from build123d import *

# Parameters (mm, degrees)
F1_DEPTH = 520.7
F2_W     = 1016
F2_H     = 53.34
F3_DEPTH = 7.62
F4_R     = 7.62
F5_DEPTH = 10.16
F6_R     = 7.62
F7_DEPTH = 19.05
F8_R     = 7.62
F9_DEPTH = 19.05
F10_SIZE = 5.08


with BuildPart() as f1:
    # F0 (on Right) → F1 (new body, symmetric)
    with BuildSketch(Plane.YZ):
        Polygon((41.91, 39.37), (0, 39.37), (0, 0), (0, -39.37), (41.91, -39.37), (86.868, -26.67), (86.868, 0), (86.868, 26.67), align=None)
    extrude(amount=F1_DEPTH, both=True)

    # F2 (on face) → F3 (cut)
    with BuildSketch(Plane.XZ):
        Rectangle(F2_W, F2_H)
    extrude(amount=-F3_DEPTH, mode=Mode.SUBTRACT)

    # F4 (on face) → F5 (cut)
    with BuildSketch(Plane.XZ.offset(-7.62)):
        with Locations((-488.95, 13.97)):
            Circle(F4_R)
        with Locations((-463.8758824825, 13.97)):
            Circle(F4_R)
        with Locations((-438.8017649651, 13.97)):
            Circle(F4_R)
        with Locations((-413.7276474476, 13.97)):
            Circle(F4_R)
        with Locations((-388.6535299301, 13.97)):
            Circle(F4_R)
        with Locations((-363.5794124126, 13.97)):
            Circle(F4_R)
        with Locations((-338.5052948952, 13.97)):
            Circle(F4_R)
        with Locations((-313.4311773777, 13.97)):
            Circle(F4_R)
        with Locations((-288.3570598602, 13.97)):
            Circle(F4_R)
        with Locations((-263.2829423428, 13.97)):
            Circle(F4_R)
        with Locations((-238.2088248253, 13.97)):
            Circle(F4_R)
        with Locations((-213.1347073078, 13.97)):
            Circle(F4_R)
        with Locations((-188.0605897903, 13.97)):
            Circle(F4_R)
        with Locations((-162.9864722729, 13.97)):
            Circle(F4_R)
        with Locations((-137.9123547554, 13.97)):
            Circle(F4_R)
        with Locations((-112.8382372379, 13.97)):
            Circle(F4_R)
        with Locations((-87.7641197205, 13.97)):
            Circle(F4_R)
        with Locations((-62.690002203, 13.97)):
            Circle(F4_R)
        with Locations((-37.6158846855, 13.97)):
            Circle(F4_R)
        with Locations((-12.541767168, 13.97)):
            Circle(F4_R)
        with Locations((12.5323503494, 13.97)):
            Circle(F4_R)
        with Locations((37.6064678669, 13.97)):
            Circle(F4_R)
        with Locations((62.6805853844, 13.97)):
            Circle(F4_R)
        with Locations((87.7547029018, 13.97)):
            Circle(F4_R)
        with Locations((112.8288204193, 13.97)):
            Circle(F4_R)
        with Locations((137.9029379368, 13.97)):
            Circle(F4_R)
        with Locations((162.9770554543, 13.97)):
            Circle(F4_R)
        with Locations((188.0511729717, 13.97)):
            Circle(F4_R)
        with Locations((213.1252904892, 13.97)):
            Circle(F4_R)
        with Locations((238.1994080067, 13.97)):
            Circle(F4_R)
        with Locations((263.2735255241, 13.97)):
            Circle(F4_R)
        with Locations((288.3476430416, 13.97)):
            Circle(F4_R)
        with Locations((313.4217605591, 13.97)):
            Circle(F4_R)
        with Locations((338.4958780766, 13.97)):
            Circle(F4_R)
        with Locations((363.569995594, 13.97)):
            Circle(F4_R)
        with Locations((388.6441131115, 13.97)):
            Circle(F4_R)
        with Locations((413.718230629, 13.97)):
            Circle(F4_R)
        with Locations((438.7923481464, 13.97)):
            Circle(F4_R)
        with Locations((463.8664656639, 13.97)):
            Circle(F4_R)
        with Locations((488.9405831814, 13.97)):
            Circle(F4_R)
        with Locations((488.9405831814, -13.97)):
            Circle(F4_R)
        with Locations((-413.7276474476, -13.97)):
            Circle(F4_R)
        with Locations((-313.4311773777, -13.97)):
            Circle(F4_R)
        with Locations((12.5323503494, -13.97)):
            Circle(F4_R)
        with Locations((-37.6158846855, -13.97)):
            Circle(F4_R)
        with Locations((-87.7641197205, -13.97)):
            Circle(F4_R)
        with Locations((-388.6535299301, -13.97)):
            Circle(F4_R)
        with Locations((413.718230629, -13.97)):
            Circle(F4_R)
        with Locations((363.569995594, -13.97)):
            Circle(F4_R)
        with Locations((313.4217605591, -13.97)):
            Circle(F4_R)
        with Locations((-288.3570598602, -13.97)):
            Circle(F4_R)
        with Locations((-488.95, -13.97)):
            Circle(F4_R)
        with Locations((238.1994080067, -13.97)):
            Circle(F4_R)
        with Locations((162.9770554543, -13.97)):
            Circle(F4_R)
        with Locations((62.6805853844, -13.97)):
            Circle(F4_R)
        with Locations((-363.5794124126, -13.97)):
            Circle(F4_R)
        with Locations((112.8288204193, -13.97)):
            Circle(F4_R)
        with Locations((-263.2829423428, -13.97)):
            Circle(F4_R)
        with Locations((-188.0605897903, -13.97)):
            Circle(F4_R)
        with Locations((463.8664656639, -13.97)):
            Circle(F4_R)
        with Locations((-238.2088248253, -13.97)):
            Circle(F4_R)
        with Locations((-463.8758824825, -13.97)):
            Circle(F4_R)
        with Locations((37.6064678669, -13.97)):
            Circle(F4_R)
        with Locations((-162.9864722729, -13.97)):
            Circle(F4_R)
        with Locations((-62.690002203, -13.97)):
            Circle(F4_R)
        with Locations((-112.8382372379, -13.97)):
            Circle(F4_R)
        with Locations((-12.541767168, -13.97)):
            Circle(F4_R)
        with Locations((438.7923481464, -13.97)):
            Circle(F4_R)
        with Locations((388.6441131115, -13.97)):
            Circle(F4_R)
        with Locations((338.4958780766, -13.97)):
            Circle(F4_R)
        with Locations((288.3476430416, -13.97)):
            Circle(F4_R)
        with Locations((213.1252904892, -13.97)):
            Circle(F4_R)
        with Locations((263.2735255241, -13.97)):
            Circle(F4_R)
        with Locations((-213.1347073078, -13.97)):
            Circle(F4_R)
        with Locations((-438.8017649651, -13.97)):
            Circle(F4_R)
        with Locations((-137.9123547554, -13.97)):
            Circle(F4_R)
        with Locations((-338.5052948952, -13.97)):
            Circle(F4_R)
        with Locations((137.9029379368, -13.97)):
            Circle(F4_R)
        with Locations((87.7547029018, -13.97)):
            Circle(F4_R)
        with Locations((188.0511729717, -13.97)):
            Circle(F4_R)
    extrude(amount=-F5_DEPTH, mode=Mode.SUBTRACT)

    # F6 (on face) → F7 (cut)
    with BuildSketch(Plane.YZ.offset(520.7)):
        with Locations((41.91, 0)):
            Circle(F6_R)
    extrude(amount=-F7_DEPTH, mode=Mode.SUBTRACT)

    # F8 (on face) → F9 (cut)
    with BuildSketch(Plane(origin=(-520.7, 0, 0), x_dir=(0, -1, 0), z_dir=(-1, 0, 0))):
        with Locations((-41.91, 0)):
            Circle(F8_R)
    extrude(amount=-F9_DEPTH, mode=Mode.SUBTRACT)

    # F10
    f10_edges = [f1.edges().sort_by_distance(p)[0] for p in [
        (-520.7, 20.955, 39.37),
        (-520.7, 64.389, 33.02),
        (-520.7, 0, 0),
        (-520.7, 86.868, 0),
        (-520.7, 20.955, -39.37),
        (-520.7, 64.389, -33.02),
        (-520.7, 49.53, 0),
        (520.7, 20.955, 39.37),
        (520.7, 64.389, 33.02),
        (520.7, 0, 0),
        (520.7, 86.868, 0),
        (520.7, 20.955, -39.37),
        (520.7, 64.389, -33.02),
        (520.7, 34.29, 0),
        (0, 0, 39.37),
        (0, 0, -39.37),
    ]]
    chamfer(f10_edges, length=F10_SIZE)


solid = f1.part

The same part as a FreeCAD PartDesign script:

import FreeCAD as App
import Part
import Sketcher
from FreeCAD import Vector
Q = App.Units.Quantity


def edges_at(feature, points):
    """Names of the edges that pass closest to the given points."""
    edges = feature.Shape.Edges
    near = lambda p: min(range(len(edges)), key=lambda i: edges[i].distToShape(Part.Vertex(*p))[0])
    return sorted({f"Edge{near(p) + 1}" for p in points})

doc = App.newDocument("Part")
params = doc.addObject("Spreadsheet::Sheet", "Params")
for row, (alias, value) in enumerate([
    ("sketch1_height", "3.1 in"),
    ("sketch1_height2", "2.1 in"),
    ("sketch1_width", "1.65 in"),
    ("pad1_length", "41 in"),
    ("sketch2_width", "40 in"),
    ("sketch2_height", "2.1 in"),
    ("pocket1_length", "0.3 in"),
    ("sketch3_diameter", "0.6 in"),
    ("pocket2_length", "0.4 in"),
    ("sketch4_diameter", "0.6 in"),
    ("pocket3_length", "0.75 in"),
    ("sketch5_diameter", "0.6 in"),
    ("pocket4_length", "0.75 in"),
    ("chamfer_size", "0.2 in"),
], start=1):
    params.set(f"A{row}", alias)
    params.set(f"B{row}", "=" + value)
    params.setAlias(f"B{row}", alias)

body = doc.addObject("PartDesign::Body", "Body")

sketch1 = body.newObject("Sketcher::SketchObject", "Sketch")
sketch1.AttachmentSupport = (doc.getObject("YZ_Plane"), [""])
sketch1.MapMode = "FlatFace"
sketch1.addGeometry([
    Part.LineSegment(Vector(42, 39, 0), Vector(0, 39, 0)),
    Part.LineSegment(Vector(0, 39, 0), Vector(0, -39, 0)),
    Part.LineSegment(Vector(0, -39, 0), Vector(42, -39, 0)),
    Part.LineSegment(Vector(42, -39, 0), Vector(87, -27, 0)),
    Part.LineSegment(Vector(87, -27, 0), Vector(87, 27, 0)),
    Part.LineSegment(Vector(87, 27, 0), Vector(42, 39, 0)),
], False)
sketch1.addConstraint([
    Sketcher.Constraint("Coincident", 0, 2, 1, 1),
    Sketcher.Constraint("Coincident", 1, 2, 2, 1),
    Sketcher.Constraint("Coincident", 2, 2, 3, 1),
    Sketcher.Constraint("Coincident", 3, 2, 4, 1),
    Sketcher.Constraint("Coincident", 4, 2, 5, 1),
    Sketcher.Constraint("Coincident", 5, 2, 0, 1),
    Sketcher.Constraint("Horizontal", 0),
    Sketcher.Constraint("Vertical", 1),
    Sketcher.Constraint("Horizontal", 2),
    Sketcher.Constraint("Vertical", 4),
    Sketcher.Constraint("Symmetric", 0, 2, 1, 2, -1, 1),
    Sketcher.Constraint("Vertical", 2, 2, 5, 2),
    Sketcher.Constraint("Equal", 3, 5),
    Sketcher.Constraint("DistanceY", 1, 2, 1, 1, Q("3.1 in")),
    Sketcher.Constraint("DistanceY", 4, 1, 4, 2, Q("2.1 in")),
    Sketcher.Constraint("DistanceX", 0, 2, 0, 1, Q("1.65 in")),
    Sketcher.Constraint("DistanceX", -1, 1, 3, 2, Q("3.42 in")),
])
sketch1.setExpression("Constraints[13]", "Params.sketch1_height")
sketch1.setExpression("Constraints[14]", "Params.sketch1_height2")
sketch1.setExpression("Constraints[15]", "Params.sketch1_width")
pad1 = body.newObject("PartDesign::Pad", "Pad")
pad1.Profile = sketch1
pad1.setExpression("Length", "Params.pad1_length")
pad1.Midplane = True

sketch2 = body.newObject("Sketcher::SketchObject", "Sketch001")
sketch2.AttachmentSupport = (doc.getObject("XZ_Plane"), [""])
sketch2.MapMode = "FlatFace"
sketch2.addGeometry([
    Part.LineSegment(Vector(-508, 27, 0), Vector(-508, -27, 0)),
    Part.LineSegment(Vector(-508, -27, 0), Vector(508, -27, 0)),
    Part.LineSegment(Vector(508, -27, 0), Vector(508, 27, 0)),
    Part.LineSegment(Vector(508, 27, 0), Vector(-508, 27, 0)),
], False)
sketch2.addConstraint([
    Sketcher.Constraint("Coincident", 0, 2, 1, 1),
    Sketcher.Constraint("Coincident", 1, 2, 2, 1),
    Sketcher.Constraint("Coincident", 2, 2, 3, 1),
    Sketcher.Constraint("Coincident", 3, 2, 0, 1),
    Sketcher.Constraint("Vertical", 0),
    Sketcher.Constraint("Horizontal", 1),
    Sketcher.Constraint("Vertical", 2),
    Sketcher.Constraint("Horizontal", 3),
    Sketcher.Constraint("Symmetric", 0, 2, 2, 2, -1, 1),
    Sketcher.Constraint("DistanceX", 1, 1, 1, 2, Q("40 in")),
    Sketcher.Constraint("DistanceY", 0, 2, 0, 1, Q("2.1 in")),
])
sketch2.setExpression("Constraints[9]", "Params.sketch2_width")
sketch2.setExpression("Constraints[10]", "Params.sketch2_height")
pocket1 = body.newObject("PartDesign::Pocket", "Pocket")
pocket1.Profile = sketch2
pocket1.setExpression("Length", "Params.pocket1_length")

sketch3 = body.newObject("Sketcher::SketchObject", "Sketch002")
sketch3.AttachmentSupport = (doc.getObject("XZ_Plane"), [""])
sketch3.MapMode = "FlatFace"
sketch3.AttachmentOffset = App.Placement(Vector(0, 0, -0.3 * 25.4), App.Rotation())
sketch3.addGeometry([
    Part.Circle(Vector(-489, 14, 0), Vector(0, 0, 1), 8),
    Part.Circle(Vector(-464, 14, 0), Vector(0, 0, 1), 8),
    Part.Circle(Vector(-439, 14, 0), Vector(0, 0, 1), 8),
    Part.Circle(Vector(-414, 14, 0), Vector(0, 0, 1), 8),
    Part.Circle(Vector(-389, 14, 0), Vector(0, 0, 1), 8),
    Part.Circle(Vector(-364, 14, 0), Vector(0, 0, 1), 8),
    Part.Circle(Vector(-339, 14, 0), Vector(0, 0, 1), 8),
    Part.Circle(Vector(-313, 14, 0), Vector(0, 0, 1), 8),
    Part.Circle(Vector(-288, 14, 0), Vector(0, 0, 1), 8),
    Part.Circle(Vector(-263, 14, 0), Vector(0, 0, 1), 8),
    Part.Circle(Vector(-238, 14, 0), Vector(0, 0, 1), 8),
    Part.Circle(Vector(-213, 14, 0), Vector(0, 0, 1), 8),
    Part.Circle(Vector(-188, 14, 0), Vector(0, 0, 1), 8),
    Part.Circle(Vector(-163, 14, 0), Vector(0, 0, 1), 8),
    Part.Circle(Vector(-138, 14, 0), Vector(0, 0, 1), 8),
    Part.Circle(Vector(-113, 14, 0), Vector(0, 0, 1), 8),
    Part.Circle(Vector(-88, 14, 0), Vector(0, 0, 1), 8),
    Part.Circle(Vector(-63, 14, 0), Vector(0, 0, 1), 8),
    Part.Circle(Vector(-38, 14, 0), Vector(0, 0, 1), 8),
    Part.Circle(Vector(-13, 14, 0), Vector(0, 0, 1), 8),
    Part.Circle(Vector(13, 14, 0), Vector(0, 0, 1), 8),
    Part.Circle(Vector(38, 14, 0), Vector(0, 0, 1), 8),
    Part.Circle(Vector(63, 14, 0), Vector(0, 0, 1), 8),
    Part.Circle(Vector(88, 14, 0), Vector(0, 0, 1), 8),
    Part.Circle(Vector(113, 14, 0), Vector(0, 0, 1), 8),
    Part.Circle(Vector(138, 14, 0), Vector(0, 0, 1), 8),
    Part.Circle(Vector(163, 14, 0), Vector(0, 0, 1), 8),
    Part.Circle(Vector(188, 14, 0), Vector(0, 0, 1), 8),
    Part.Circle(Vector(213, 14, 0), Vector(0, 0, 1), 8),
    Part.Circle(Vector(238, 14, 0), Vector(0, 0, 1), 8),
    Part.Circle(Vector(263, 14, 0), Vector(0, 0, 1), 8),
    Part.Circle(Vector(288, 14, 0), Vector(0, 0, 1), 8),
    Part.Circle(Vector(313, 14, 0), Vector(0, 0, 1), 8),
    Part.Circle(Vector(338, 14, 0), Vector(0, 0, 1), 8),
    Part.Circle(Vector(364, 14, 0), Vector(0, 0, 1), 8),
    Part.Circle(Vector(389, 14, 0), Vector(0, 0, 1), 8),
    Part.Circle(Vector(414, 14, 0), Vector(0, 0, 1), 8),
    Part.Circle(Vector(439, 14, 0), Vector(0, 0, 1), 8),
    Part.Circle(Vector(464, 14, 0), Vector(0, 0, 1), 8),
    Part.Circle(Vector(489, 14, 0), Vector(0, 0, 1), 8),
    Part.Circle(Vector(489, -14, 0), Vector(0, 0, 1), 8),
    Part.Circle(Vector(-414, -14, 0), Vector(0, 0, 1), 8),
    Part.Circle(Vector(-313, -14, 0), Vector(0, 0, 1), 8),
    Part.Circle(Vector(13, -14, 0), Vector(0, 0, 1), 8),
    Part.Circle(Vector(-38, -14, 0), Vector(0, 0, 1), 8),
    Part.Circle(Vector(-88, -14, 0), Vector(0, 0, 1), 8),
    Part.Circle(Vector(-389, -14, 0), Vector(0, 0, 1), 8),
    Part.Circle(Vector(414, -14, 0), Vector(0, 0, 1), 8),
    Part.Circle(Vector(364, -14, 0), Vector(0, 0, 1), 8),
    Part.Circle(Vector(313, -14, 0), Vector(0, 0, 1), 8),
    Part.Circle(Vector(-288, -14, 0), Vector(0, 0, 1), 8),
    Part.Circle(Vector(-489, -14, 0), Vector(0, 0, 1), 8),
    Part.Circle(Vector(238, -14, 0), Vector(0, 0, 1), 8),
    Part.Circle(Vector(163, -14, 0), Vector(0, 0, 1), 8),
    Part.Circle(Vector(63, -14, 0), Vector(0, 0, 1), 8),
    Part.Circle(Vector(-364, -14, 0), Vector(0, 0, 1), 8),
    Part.Circle(Vector(113, -14, 0), Vector(0, 0, 1), 8),
    Part.Circle(Vector(-263, -14, 0), Vector(0, 0, 1), 8),
    Part.Circle(Vector(-188, -14, 0), Vector(0, 0, 1), 8),
    Part.Circle(Vector(464, -14, 0), Vector(0, 0, 1), 8),
    Part.Circle(Vector(-238, -14, 0), Vector(0, 0, 1), 8),
    Part.Circle(Vector(-464, -14, 0), Vector(0, 0, 1), 8),
    Part.Circle(Vector(38, -14, 0), Vector(0, 0, 1), 8),
    Part.Circle(Vector(-163, -14, 0), Vector(0, 0, 1), 8),
    Part.Circle(Vector(-63, -14, 0), Vector(0, 0, 1), 8),
    Part.Circle(Vector(-113, -14, 0), Vector(0, 0, 1), 8),
    Part.Circle(Vector(-13, -14, 0), Vector(0, 0, 1), 8),
    Part.Circle(Vector(439, -14, 0), Vector(0, 0, 1), 8),
    Part.Circle(Vector(389, -14, 0), Vector(0, 0, 1), 8),
    Part.Circle(Vector(338, -14, 0), Vector(0, 0, 1), 8),
    Part.Circle(Vector(288, -14, 0), Vector(0, 0, 1), 8),
    Part.Circle(Vector(213, -14, 0), Vector(0, 0, 1), 8),
    Part.Circle(Vector(263, -14, 0), Vector(0, 0, 1), 8),
    Part.Circle(Vector(-213, -14, 0), Vector(0, 0, 1), 8),
    Part.Circle(Vector(-439, -14, 0), Vector(0, 0, 1), 8),
    Part.Circle(Vector(-138, -14, 0), Vector(0, 0, 1), 8),
    Part.Circle(Vector(-339, -14, 0), Vector(0, 0, 1), 8),
    Part.Circle(Vector(138, -14, 0), Vector(0, 0, 1), 8),
    Part.Circle(Vector(88, -14, 0), Vector(0, 0, 1), 8),
    Part.Circle(Vector(188, -14, 0), Vector(0, 0, 1), 8),
], False)
sketch3.addConstraint([
    Sketcher.Constraint("Equal", 0, 1),
    Sketcher.Constraint("Equal", 1, 2),
    Sketcher.Constraint("Equal", 2, 3),
    Sketcher.Constraint("Equal", 3, 4),
    Sketcher.Constraint("Equal", 4, 5),
    Sketcher.Constraint("Equal", 5, 6),
    Sketcher.Constraint("Equal", 6, 7),
    Sketcher.Constraint("Equal", 7, 8),
    Sketcher.Constraint("Equal", 8, 9),
    Sketcher.Constraint("Equal", 9, 10),
    Sketcher.Constraint("Equal", 10, 11),
    Sketcher.Constraint("Equal", 11, 12),
    Sketcher.Constraint("Equal", 12, 13),
    Sketcher.Constraint("Equal", 13, 14),
    Sketcher.Constraint("Equal", 14, 15),
    Sketcher.Constraint("Equal", 15, 16),
    Sketcher.Constraint("Equal", 16, 17),
    Sketcher.Constraint("Equal", 17, 18),
    Sketcher.Constraint("Equal", 18, 19),
    Sketcher.Constraint("Equal", 19, 20),
    Sketcher.Constraint("Equal", 20, 21),
    Sketcher.Constraint("Equal", 21, 22),
    Sketcher.Constraint("Equal", 22, 23),
    Sketcher.Constraint("Equal", 23, 24),
    Sketcher.Constraint("Equal", 24, 25),
    Sketcher.Constraint("Equal", 25, 26),
    Sketcher.Constraint("Equal", 26, 27),
    Sketcher.Constraint("Equal", 27, 28),
    Sketcher.Constraint("Equal", 28, 29),
    Sketcher.Constraint("Equal", 29, 30),
    Sketcher.Constraint("Equal", 30, 31),
    Sketcher.Constraint("Equal", 31, 32),
    Sketcher.Constraint("Equal", 32, 33),
    Sketcher.Constraint("Equal", 33, 34),
    Sketcher.Constraint("Equal", 34, 35),
    Sketcher.Constraint("Equal", 35, 36),
    Sketcher.Constraint("Equal", 36, 37),
    Sketcher.Constraint("Equal", 37, 38),
    Sketcher.Constraint("Equal", 38, 39),
    Sketcher.Constraint("Equal", 39, 40),
    Sketcher.Constraint("Equal", 40, 41),
    Sketcher.Constraint("Equal", 41, 42),
    Sketcher.Constraint("Equal", 42, 43),
    Sketcher.Constraint("Equal", 43, 44),
    Sketcher.Constraint("Equal", 44, 45),
    Sketcher.Constraint("Equal", 45, 46),
    Sketcher.Constraint("Equal", 46, 47),
    Sketcher.Constraint("Equal", 47, 48),
    Sketcher.Constraint("Equal", 48, 49),
    Sketcher.Constraint("Equal", 49, 50),
    Sketcher.Constraint("Equal", 50, 51),
    Sketcher.Constraint("Equal", 51, 52),
    Sketcher.Constraint("Equal", 52, 53),
    Sketcher.Constraint("Equal", 53, 54),
    Sketcher.Constraint("Equal", 54, 55),
    Sketcher.Constraint("Equal", 55, 56),
    Sketcher.Constraint("Equal", 56, 57),
    Sketcher.Constraint("Equal", 57, 58),
    Sketcher.Constraint("Equal", 58, 59),
    Sketcher.Constraint("Equal", 59, 60),
    Sketcher.Constraint("Equal", 60, 61),
    Sketcher.Constraint("Equal", 61, 62),
    Sketcher.Constraint("Equal", 62, 63),
    Sketcher.Constraint("Equal", 63, 64),
    Sketcher.Constraint("Equal", 64, 65),
    Sketcher.Constraint("Equal", 65, 66),
    Sketcher.Constraint("Equal", 66, 67),
    Sketcher.Constraint("Equal", 67, 68),
    Sketcher.Constraint("Equal", 68, 69),
    Sketcher.Constraint("Equal", 69, 70),
    Sketcher.Constraint("Equal", 70, 71),
    Sketcher.Constraint("Equal", 71, 72),
    Sketcher.Constraint("Equal", 72, 73),
    Sketcher.Constraint("Equal", 73, 74),
    Sketcher.Constraint("Equal", 74, 75),
    Sketcher.Constraint("Equal", 75, 76),
    Sketcher.Constraint("Equal", 76, 77),
    Sketcher.Constraint("Equal", 77, 78),
    Sketcher.Constraint("Equal", 78, 79),
    Sketcher.Constraint("Symmetric", 39, 3, 40, 3, -1),
    Sketcher.Constraint("Symmetric", 3, 3, 41, 3, -1),
    Sketcher.Constraint("Symmetric", 7, 3, 42, 3, -1),
    Sketcher.Constraint("Symmetric", 20, 3, 43, 3, -1),
    Sketcher.Constraint("Symmetric", 18, 3, 44, 3, -1),
    Sketcher.Constraint("Symmetric", 16, 3, 45, 3, -1),
    Sketcher.Constraint("Symmetric", 4, 3, 46, 3, -1),
    Sketcher.Constraint("Symmetric", 36, 3, 47, 3, -1),
    Sketcher.Constraint("Symmetric", 34, 3, 48, 3, -1),
    Sketcher.Constraint("Symmetric", 32, 3, 49, 3, -1),
    Sketcher.Constraint("Symmetric", 8, 3, 50, 3, -1),
    Sketcher.Constraint("Symmetric", 0, 3, 51, 3, -1),
    Sketcher.Constraint("Symmetric", 29, 3, 52, 3, -1),
    Sketcher.Constraint("Symmetric", 26, 3, 53, 3, -1),
    Sketcher.Constraint("Symmetric", 22, 3, 54, 3, -1),
    Sketcher.Constraint("Symmetric", 5, 3, 55, 3, -1),
    Sketcher.Constraint("Symmetric", 24, 3, 56, 3, -1),
    Sketcher.Constraint("Symmetric", 9, 3, 57, 3, -1),
    Sketcher.Constraint("Symmetric", 12, 3, 58, 3, -1),
    Sketcher.Constraint("Symmetric", 38, 3, 59, 3, -1),
    Sketcher.Constraint("Symmetric", 10, 3, 60, 3, -1),
    Sketcher.Constraint("Symmetric", 1, 3, 61, 3, -1),
    Sketcher.Constraint("Symmetric", 21, 3, 62, 3, -1),
    Sketcher.Constraint("Symmetric", 13, 3, 63, 3, -1),
    Sketcher.Constraint("Symmetric", 17, 3, 64, 3, -1),
    Sketcher.Constraint("Symmetric", 15, 3, 65, 3, -1),
    Sketcher.Constraint("Symmetric", 19, 3, 66, 3, -1),
    Sketcher.Constraint("Symmetric", 37, 3, 67, 3, -1),
    Sketcher.Constraint("Symmetric", 35, 3, 68, 3, -1),
    Sketcher.Constraint("Symmetric", 33, 3, 69, 3, -1),
    Sketcher.Constraint("Symmetric", 31, 3, 70, 3, -1),
    Sketcher.Constraint("Symmetric", 28, 3, 71, 3, -1),
    Sketcher.Constraint("Symmetric", 30, 3, 72, 3, -1),
    Sketcher.Constraint("Symmetric", 11, 3, 73, 3, -1),
    Sketcher.Constraint("Symmetric", 2, 3, 74, 3, -1),
    Sketcher.Constraint("Symmetric", 14, 3, 75, 3, -1),
    Sketcher.Constraint("Symmetric", 6, 3, 76, 3, -1),
    Sketcher.Constraint("Symmetric", 25, 3, 77, 3, -1),
    Sketcher.Constraint("Symmetric", 23, 3, 78, 3, -1),
    Sketcher.Constraint("Symmetric", 27, 3, 79, 3, -1),
    Sketcher.Constraint("Horizontal", 0, 3, 1, 3),
    Sketcher.Constraint("Horizontal", 1, 3, 2, 3),
    Sketcher.Constraint("Horizontal", 2, 3, 3, 3),
    Sketcher.Constraint("Horizontal", 3, 3, 4, 3),
    Sketcher.Constraint("Horizontal", 4, 3, 5, 3),
    Sketcher.Constraint("Horizontal", 5, 3, 6, 3),
    Sketcher.Constraint("Horizontal", 6, 3, 7, 3),
    Sketcher.Constraint("Horizontal", 7, 3, 8, 3),
    Sketcher.Constraint("Horizontal", 8, 3, 9, 3),
    Sketcher.Constraint("Horizontal", 9, 3, 10, 3),
    Sketcher.Constraint("Horizontal", 10, 3, 11, 3),
    Sketcher.Constraint("Horizontal", 11, 3, 12, 3),
    Sketcher.Constraint("Horizontal", 12, 3, 13, 3),
    Sketcher.Constraint("Horizontal", 13, 3, 14, 3),
    Sketcher.Constraint("Horizontal", 14, 3, 15, 3),
    Sketcher.Constraint("Horizontal", 15, 3, 16, 3),
    Sketcher.Constraint("Horizontal", 16, 3, 17, 3),
    Sketcher.Constraint("Horizontal", 17, 3, 18, 3),
    Sketcher.Constraint("Horizontal", 18, 3, 19, 3),
    Sketcher.Constraint("Horizontal", 19, 3, 20, 3),
    Sketcher.Constraint("Horizontal", 20, 3, 21, 3),
    Sketcher.Constraint("Horizontal", 21, 3, 22, 3),
    Sketcher.Constraint("Horizontal", 22, 3, 23, 3),
    Sketcher.Constraint("Horizontal", 23, 3, 24, 3),
    Sketcher.Constraint("Horizontal", 24, 3, 25, 3),
    Sketcher.Constraint("Horizontal", 25, 3, 26, 3),
    Sketcher.Constraint("Horizontal", 26, 3, 27, 3),
    Sketcher.Constraint("Horizontal", 27, 3, 28, 3),
    Sketcher.Constraint("Horizontal", 28, 3, 29, 3),
    Sketcher.Constraint("Horizontal", 29, 3, 30, 3),
    Sketcher.Constraint("Horizontal", 30, 3, 31, 3),
    Sketcher.Constraint("Horizontal", 31, 3, 32, 3),
    Sketcher.Constraint("Horizontal", 32, 3, 33, 3),
    Sketcher.Constraint("Horizontal", 33, 3, 34, 3),
    Sketcher.Constraint("Horizontal", 34, 3, 35, 3),
    Sketcher.Constraint("Horizontal", 35, 3, 36, 3),
    Sketcher.Constraint("Horizontal", 36, 3, 37, 3),
    Sketcher.Constraint("Horizontal", 37, 3, 38, 3),
    Sketcher.Constraint("Horizontal", 38, 3, 39, 3),
    Sketcher.Constraint("Diameter", 0, Q("0.6 in")),
    Sketcher.Constraint("DistanceX", 0, 3, -1, 1, Q("19.25 in")),
    Sketcher.Constraint("DistanceY", -1, 1, 0, 3, Q("0.55 in")),
    Sketcher.Constraint("DistanceX", 10, 3, -1, 1, Q("9.3783002 in")),
    Sketcher.Constraint("DistanceX", 4, 3, -1, 1, Q("388.65353 mm")),
    Sketcher.Constraint("DistanceX", 8, 3, -1, 1, Q("288.35706 mm")),
    Sketcher.Constraint("DistanceX", 12, 3, -1, 1, Q("188.06059 mm")),
    Sketcher.Constraint("DistanceX", 16, 3, -1, 1, Q("87.76412 mm")),
    Sketcher.Constraint("DistanceX", -1, 1, 20, 3, Q("12.53235 mm")),
    Sketcher.Constraint("DistanceX", -1, 1, 24, 3, Q("112.82882 mm")),
    Sketcher.Constraint("DistanceX", -1, 1, 28, 3, Q("213.12529 mm")),
    Sketcher.Constraint("DistanceX", -1, 1, 29, 3, Q("238.199408 mm")),
    Sketcher.Constraint("DistanceX", -1, 1, 32, 3, Q("313.421761 mm")),
    Sketcher.Constraint("DistanceX", -1, 1, 33, 3, Q("338.495878 mm")),
    Sketcher.Constraint("DistanceX", -1, 1, 36, 3, Q("413.718231 mm")),
    Sketcher.Constraint("DistanceX", -1, 1, 37, 3, Q("438.792348 mm")),
    Sketcher.Constraint("DistanceX", 1, 3, -1, 1, Q("463.875882 mm")),
    Sketcher.Constraint("DistanceX", 2, 3, -1, 1, Q("438.801765 mm")),
    Sketcher.Constraint("DistanceX", 3, 3, -1, 1, Q("413.727647 mm")),
    Sketcher.Constraint("DistanceX", 5, 3, -1, 1, Q("363.579412 mm")),
    Sketcher.Constraint("DistanceX", 6, 3, -1, 1, Q("338.505295 mm")),
    Sketcher.Constraint("DistanceX", 7, 3, -1, 1, Q("313.431177 mm")),
    Sketcher.Constraint("DistanceX", 9, 3, -1, 1, Q("263.282942 mm")),
    Sketcher.Constraint("DistanceX", 11, 3, -1, 1, Q("213.134707 mm")),
    Sketcher.Constraint("DistanceX", 13, 3, -1, 1, Q("162.986472 mm")),
    Sketcher.Constraint("DistanceX", 14, 3, -1, 1, Q("137.912355 mm")),
    Sketcher.Constraint("DistanceX", 15, 3, -1, 1, Q("112.838237 mm")),
    Sketcher.Constraint("DistanceX", 17, 3, -1, 1, Q("62.690002 mm")),
    Sketcher.Constraint("DistanceX", 18, 3, -1, 1, Q("37.615885 mm")),
    Sketcher.Constraint("DistanceX", 19, 3, -1, 1, Q("12.541767 mm")),
    Sketcher.Constraint("DistanceX", -1, 1, 21, 3, Q("37.606468 mm")),
    Sketcher.Constraint("DistanceX", -1, 1, 22, 3, Q("62.680585 mm")),
    Sketcher.Constraint("DistanceX", -1, 1, 23, 3, Q("87.754703 mm")),
    Sketcher.Constraint("DistanceX", -1, 1, 25, 3, Q("137.902938 mm")),
    Sketcher.Constraint("DistanceX", -1, 1, 26, 3, Q("162.977055 mm")),
    Sketcher.Constraint("DistanceX", -1, 1, 27, 3, Q("188.051173 mm")),
    Sketcher.Constraint("DistanceX", -1, 1, 30, 3, Q("263.273526 mm")),
    Sketcher.Constraint("DistanceX", -1, 1, 31, 3, Q("288.347643 mm")),
    Sketcher.Constraint("DistanceX", -1, 1, 34, 3, Q("363.569996 mm")),
    Sketcher.Constraint("DistanceX", -1, 1, 35, 3, Q("388.644113 mm")),
    Sketcher.Constraint("DistanceX", -1, 1, 38, 3, Q("463.866466 mm")),
    Sketcher.Constraint("DistanceX", -1, 1, 39, 3, Q("488.940583 mm")),
])
sketch3.setExpression("Constraints[158]", "Params.sketch3_diameter")
pocket2 = body.newObject("PartDesign::Pocket", "Pocket001")
pocket2.Profile = sketch3
pocket2.setExpression("Length", "Params.pocket2_length")

sketch4 = body.newObject("Sketcher::SketchObject", "Sketch003")
sketch4.AttachmentSupport = (doc.getObject("YZ_Plane"), [""])
sketch4.MapMode = "FlatFace"
sketch4.AttachmentOffset = App.Placement(Vector(0, 0, 20.5 * 25.4), App.Rotation())
sketch4.addGeometry(Part.Circle(Vector(42, 0, 0), Vector(0, 0, 1), 8), False)
sketch4.addConstraint([
    Sketcher.Constraint("PointOnObject", 0, 3, -1),
    Sketcher.Constraint("Diameter", 0, Q("0.6 in")),
    Sketcher.Constraint("DistanceX", -1, 1, 0, 3, Q("1.65 in")),
])
sketch4.setExpression("Constraints[1]", "Params.sketch4_diameter")
pocket3 = body.newObject("PartDesign::Pocket", "Pocket002")
pocket3.Profile = sketch4
pocket3.setExpression("Length", "Params.pocket3_length")

sketch5 = body.newObject("Sketcher::SketchObject", "Sketch004")
sketch5.AttachmentSupport = (doc.getObject("YZ_Plane"), [""])
sketch5.MapMode = "FlatFace"
sketch5.AttachmentOffset = App.Placement(Vector(0, 0, -20.5 * 25.4), App.Rotation())
sketch5.addGeometry(Part.Circle(Vector(42, 0, 0), Vector(0, 0, 1), 8), False)
sketch5.addConstraint([
    Sketcher.Constraint("PointOnObject", 0, 3, -1),
    Sketcher.Constraint("Diameter", 0, Q("0.6 in")),
    Sketcher.Constraint("DistanceX", -1, 1, 0, 3, Q("1.65 in")),
])
sketch5.setExpression("Constraints[1]", "Params.sketch5_diameter")
pocket4 = body.newObject("PartDesign::Pocket", "Pocket003")
pocket4.Profile = sketch5
pocket4.setExpression("Length", "Params.pocket4_length")
pocket4.Reversed = True
doc.recompute()

chamfer = body.newObject("PartDesign::Chamfer", "Chamfer")
chamfer.Base = (pocket4, edges_at(pocket4, [
    (-520.7, 20.955, 39.37),
    (-520.7, 64.389, 33.02),
    (-520.7, 0, 0),
    (-520.7, 86.868, 0),
    (-520.7, 20.955, -39.37),
    (-520.7, 64.389, -33.02),
    (-520.7, 49.53, 0),
    (520.7, 20.955, 39.37),
    (520.7, 64.389, 33.02),
    (520.7, 0, 0),
    (520.7, 86.868, 0),
    (520.7, 20.955, -39.37),
    (520.7, 64.389, -33.02),
    (520.7, 34.29, 0),
    (0, 0, 39.37),
    (0, 0, -39.37),
]))
chamfer.setExpression("Size", "Params.chamfer_size")

doc.recompute()
